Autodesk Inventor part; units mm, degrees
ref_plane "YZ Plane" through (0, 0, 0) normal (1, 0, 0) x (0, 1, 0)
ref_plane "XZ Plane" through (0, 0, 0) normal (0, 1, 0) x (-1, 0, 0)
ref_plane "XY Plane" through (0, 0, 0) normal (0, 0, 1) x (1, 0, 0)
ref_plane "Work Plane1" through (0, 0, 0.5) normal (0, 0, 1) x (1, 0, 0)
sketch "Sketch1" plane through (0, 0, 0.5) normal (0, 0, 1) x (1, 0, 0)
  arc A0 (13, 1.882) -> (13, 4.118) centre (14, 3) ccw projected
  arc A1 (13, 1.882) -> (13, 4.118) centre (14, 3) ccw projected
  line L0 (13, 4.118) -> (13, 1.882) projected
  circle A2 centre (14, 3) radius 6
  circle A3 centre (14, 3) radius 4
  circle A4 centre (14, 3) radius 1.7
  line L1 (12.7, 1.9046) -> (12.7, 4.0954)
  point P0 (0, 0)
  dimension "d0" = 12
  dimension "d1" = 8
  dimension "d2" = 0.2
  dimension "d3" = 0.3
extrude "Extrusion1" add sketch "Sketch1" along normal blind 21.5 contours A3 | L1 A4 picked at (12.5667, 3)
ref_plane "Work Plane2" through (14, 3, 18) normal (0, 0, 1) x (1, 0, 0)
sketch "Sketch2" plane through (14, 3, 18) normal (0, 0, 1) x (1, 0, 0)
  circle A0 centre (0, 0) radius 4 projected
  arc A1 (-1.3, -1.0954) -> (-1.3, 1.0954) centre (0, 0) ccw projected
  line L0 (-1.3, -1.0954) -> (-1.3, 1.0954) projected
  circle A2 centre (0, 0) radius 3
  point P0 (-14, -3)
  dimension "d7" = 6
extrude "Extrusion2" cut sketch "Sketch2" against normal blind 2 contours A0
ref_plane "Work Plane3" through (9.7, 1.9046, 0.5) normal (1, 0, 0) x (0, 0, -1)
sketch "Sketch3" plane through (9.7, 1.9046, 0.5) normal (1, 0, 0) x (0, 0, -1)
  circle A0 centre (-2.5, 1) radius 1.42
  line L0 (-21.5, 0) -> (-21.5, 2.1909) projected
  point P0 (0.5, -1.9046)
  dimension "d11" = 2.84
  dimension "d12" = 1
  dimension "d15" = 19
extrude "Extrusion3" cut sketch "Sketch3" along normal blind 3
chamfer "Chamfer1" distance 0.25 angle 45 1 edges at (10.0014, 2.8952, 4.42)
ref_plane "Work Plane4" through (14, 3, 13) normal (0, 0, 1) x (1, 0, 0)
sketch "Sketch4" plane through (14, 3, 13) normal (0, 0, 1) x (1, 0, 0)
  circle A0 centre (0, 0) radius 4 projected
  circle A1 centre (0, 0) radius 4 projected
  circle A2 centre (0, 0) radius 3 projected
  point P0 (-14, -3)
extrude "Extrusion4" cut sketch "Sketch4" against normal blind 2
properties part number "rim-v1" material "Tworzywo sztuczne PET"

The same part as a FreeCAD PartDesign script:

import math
import FreeCAD as App
import Part
import Sketcher
from FreeCAD import Vector


def edges_at(feature, points):
    """Names of the edges that pass closest to the given points."""
    edges = feature.Shape.Edges
    near = lambda p: min(range(len(edges)), key=lambda i: edges[i].distToShape(Part.Vertex(*p))[0])
    return sorted({f"Edge{near(p) + 1}" for p in points})

doc = App.newDocument("Part")
body = doc.addObject("PartDesign::Body", "Body")

sketch1 = body.newObject("Sketcher::SketchObject", "Sketch")
sketch1.AttachmentSupport = (doc.getObject("XY_Plane"), [""])
sketch1.MapMode = "FlatFace"
sketch1.AttachmentOffset = App.Placement(Vector(0, 0, 0.5), App.Rotation())
sketch1.addGeometry(Part.Circle(Vector(14, 3, 0), Vector(0, 0, 1), 4), False)
sketch1.addGeometry(Part.ArcOfCircle(Part.Circle(Vector(14, 3, 0), Vector(0, 0, 1), 1.7), math.radians(-140), math.radians(140)), False)
sketch1.addGeometry(Part.LineSegment(Vector(12.7, 4.1, 0), Vector(12.7, 1.9, 0)), False)
sketch1.addConstraint(Sketcher.Constraint("Coincident", 1, 1, 2, 2))
sketch1.addConstraint(Sketcher.Constraint("Coincident", 2, 1, 1, 2))
sketch1.addConstraint(Sketcher.Constraint("Vertical", 2))
sketch1.addConstraint(Sketcher.Constraint("Coincident", 1, 3, 0, 3))
sketch1.addConstraint(Sketcher.Constraint("Diameter", 0, 8.0))
sketch1.addConstraint(Sketcher.Constraint("Radius", 1, 1.7))
sketch1.addConstraint(Sketcher.Constraint("DistanceX", -1, 1, 0, 3, 14.0))
sketch1.addConstraint(Sketcher.Constraint("DistanceY", -1, 1, 0, 3, 3.0))
sketch1.addConstraint(Sketcher.Constraint("DistanceX", -1, 1, 1, 1, 12.7))
pad1 = body.newObject("PartDesign::Pad", "Pad")
pad1.Profile = sketch1
pad1.Length = 21.5

sketch2 = body.newObject("Sketcher::SketchObject", "Sketch001")
sketch2.AttachmentSupport = (doc.getObject("XY_Plane"), [""])
sketch2.MapMode = "FlatFace"
sketch2.AttachmentOffset = App.Placement(Vector(0, 0, 18), App.Rotation())
sketch2.addGeometry(Part.Circle(Vector(14, 3, 0), Vector(0, 0, 1), 4), False)
sketch2.addGeometry(Part.Circle(Vector(14, 3, 0), Vector(0, 0, 1), 3), False)
sketch2.addConstraint(Sketcher.Constraint("Coincident", 1, 3, 0, 3))
sketch2.addConstraint(Sketcher.Constraint("Diameter", 1, 6.0))
sketch2.addConstraint(Sketcher.Constraint("Diameter", 0, 8.0))
sketch2.addConstraint(Sketcher.Constraint("DistanceX", -1, 1, 0, 3, 14.0))
sketch2.addConstraint(Sketcher.Constraint("DistanceY", -1, 1, 0, 3, 3.0))
pocket1 = body.newObject("PartDesign::Pocket", "Pocket")
pocket1.Profile = sketch2
pocket1.Length = 2

sketch3 = body.newObject("Sketcher::SketchObject", "Sketch002")
sketch3.AttachmentSupport = (doc.getObject("YZ_Plane"), [""])
sketch3.MapMode = "FlatFace"
sketch3.AttachmentOffset = App.Placement(Vector(0, 0, 9.7), App.Rotation())
sketch3.addGeometry(Part.Circle(Vector(2.9, 3, 0), Vector(0, 0, 1), 1.4), False)
sketch3.addConstraint(Sketcher.Constraint("Diameter", 0, 2.84))
sketch3.addConstraint(Sketcher.Constraint("DistanceY", -1, 1, 0, 3, 3.0))
sketch3.addConstraint(Sketcher.Constraint("DistanceX", -1, 1, 0, 3, 2.9046))
pocket2 = body.newObject("PartDesign::Pocket", "Pocket001")
pocket2.Profile = sketch3
pocket2.Length = 3
pocket2.Reversed = True
doc.recompute()

chamfer = body.newObject("PartDesign::Chamfer", "Chamfer")
chamfer.Base = (pocket2, edges_at(pocket2, [(10.001, 2.895, 4.42)]))
chamfer.Size = 0.25

sketch4 = body.newObject("Sketcher::SketchObject", "Sketch003")
sketch4.AttachmentSupport = (doc.getObject("XY_Plane"), [""])
sketch4.MapMode = "FlatFace"
sketch4.AttachmentOffset = App.Placement(Vector(0, 0, 13), App.Rotation())
sketch4.addGeometry(Part.Circle(Vector(14, 3, 0), Vector(0, 0, 1), 4), False)
sketch4.addGeometry(Part.Circle(Vector(14, 3, 0), Vector(0, 0, 1), 3), False)
sketch4.addConstraint(Sketcher.Constraint("Coincident", 1, 3, 0, 3))
sketch4.addConstraint(Sketcher.Constraint("Diameter", 0, 8.0))
sketch4.addConstraint(Sketcher.Constraint("Diameter", 1, 6.0))
sketch4.addConstraint(Sketcher.Constraint("DistanceX", -1, 1, 0, 3, 14.0))
sketch4.addConstraint(Sketcher.Constraint("DistanceY", -1, 1, 0, 3, 3.0))
pocket3 = body.newObject("PartDesign::Pocket", "Pocket002")
pocket3.Profile = sketch4
pocket3.Length = 2

doc.recompute()
